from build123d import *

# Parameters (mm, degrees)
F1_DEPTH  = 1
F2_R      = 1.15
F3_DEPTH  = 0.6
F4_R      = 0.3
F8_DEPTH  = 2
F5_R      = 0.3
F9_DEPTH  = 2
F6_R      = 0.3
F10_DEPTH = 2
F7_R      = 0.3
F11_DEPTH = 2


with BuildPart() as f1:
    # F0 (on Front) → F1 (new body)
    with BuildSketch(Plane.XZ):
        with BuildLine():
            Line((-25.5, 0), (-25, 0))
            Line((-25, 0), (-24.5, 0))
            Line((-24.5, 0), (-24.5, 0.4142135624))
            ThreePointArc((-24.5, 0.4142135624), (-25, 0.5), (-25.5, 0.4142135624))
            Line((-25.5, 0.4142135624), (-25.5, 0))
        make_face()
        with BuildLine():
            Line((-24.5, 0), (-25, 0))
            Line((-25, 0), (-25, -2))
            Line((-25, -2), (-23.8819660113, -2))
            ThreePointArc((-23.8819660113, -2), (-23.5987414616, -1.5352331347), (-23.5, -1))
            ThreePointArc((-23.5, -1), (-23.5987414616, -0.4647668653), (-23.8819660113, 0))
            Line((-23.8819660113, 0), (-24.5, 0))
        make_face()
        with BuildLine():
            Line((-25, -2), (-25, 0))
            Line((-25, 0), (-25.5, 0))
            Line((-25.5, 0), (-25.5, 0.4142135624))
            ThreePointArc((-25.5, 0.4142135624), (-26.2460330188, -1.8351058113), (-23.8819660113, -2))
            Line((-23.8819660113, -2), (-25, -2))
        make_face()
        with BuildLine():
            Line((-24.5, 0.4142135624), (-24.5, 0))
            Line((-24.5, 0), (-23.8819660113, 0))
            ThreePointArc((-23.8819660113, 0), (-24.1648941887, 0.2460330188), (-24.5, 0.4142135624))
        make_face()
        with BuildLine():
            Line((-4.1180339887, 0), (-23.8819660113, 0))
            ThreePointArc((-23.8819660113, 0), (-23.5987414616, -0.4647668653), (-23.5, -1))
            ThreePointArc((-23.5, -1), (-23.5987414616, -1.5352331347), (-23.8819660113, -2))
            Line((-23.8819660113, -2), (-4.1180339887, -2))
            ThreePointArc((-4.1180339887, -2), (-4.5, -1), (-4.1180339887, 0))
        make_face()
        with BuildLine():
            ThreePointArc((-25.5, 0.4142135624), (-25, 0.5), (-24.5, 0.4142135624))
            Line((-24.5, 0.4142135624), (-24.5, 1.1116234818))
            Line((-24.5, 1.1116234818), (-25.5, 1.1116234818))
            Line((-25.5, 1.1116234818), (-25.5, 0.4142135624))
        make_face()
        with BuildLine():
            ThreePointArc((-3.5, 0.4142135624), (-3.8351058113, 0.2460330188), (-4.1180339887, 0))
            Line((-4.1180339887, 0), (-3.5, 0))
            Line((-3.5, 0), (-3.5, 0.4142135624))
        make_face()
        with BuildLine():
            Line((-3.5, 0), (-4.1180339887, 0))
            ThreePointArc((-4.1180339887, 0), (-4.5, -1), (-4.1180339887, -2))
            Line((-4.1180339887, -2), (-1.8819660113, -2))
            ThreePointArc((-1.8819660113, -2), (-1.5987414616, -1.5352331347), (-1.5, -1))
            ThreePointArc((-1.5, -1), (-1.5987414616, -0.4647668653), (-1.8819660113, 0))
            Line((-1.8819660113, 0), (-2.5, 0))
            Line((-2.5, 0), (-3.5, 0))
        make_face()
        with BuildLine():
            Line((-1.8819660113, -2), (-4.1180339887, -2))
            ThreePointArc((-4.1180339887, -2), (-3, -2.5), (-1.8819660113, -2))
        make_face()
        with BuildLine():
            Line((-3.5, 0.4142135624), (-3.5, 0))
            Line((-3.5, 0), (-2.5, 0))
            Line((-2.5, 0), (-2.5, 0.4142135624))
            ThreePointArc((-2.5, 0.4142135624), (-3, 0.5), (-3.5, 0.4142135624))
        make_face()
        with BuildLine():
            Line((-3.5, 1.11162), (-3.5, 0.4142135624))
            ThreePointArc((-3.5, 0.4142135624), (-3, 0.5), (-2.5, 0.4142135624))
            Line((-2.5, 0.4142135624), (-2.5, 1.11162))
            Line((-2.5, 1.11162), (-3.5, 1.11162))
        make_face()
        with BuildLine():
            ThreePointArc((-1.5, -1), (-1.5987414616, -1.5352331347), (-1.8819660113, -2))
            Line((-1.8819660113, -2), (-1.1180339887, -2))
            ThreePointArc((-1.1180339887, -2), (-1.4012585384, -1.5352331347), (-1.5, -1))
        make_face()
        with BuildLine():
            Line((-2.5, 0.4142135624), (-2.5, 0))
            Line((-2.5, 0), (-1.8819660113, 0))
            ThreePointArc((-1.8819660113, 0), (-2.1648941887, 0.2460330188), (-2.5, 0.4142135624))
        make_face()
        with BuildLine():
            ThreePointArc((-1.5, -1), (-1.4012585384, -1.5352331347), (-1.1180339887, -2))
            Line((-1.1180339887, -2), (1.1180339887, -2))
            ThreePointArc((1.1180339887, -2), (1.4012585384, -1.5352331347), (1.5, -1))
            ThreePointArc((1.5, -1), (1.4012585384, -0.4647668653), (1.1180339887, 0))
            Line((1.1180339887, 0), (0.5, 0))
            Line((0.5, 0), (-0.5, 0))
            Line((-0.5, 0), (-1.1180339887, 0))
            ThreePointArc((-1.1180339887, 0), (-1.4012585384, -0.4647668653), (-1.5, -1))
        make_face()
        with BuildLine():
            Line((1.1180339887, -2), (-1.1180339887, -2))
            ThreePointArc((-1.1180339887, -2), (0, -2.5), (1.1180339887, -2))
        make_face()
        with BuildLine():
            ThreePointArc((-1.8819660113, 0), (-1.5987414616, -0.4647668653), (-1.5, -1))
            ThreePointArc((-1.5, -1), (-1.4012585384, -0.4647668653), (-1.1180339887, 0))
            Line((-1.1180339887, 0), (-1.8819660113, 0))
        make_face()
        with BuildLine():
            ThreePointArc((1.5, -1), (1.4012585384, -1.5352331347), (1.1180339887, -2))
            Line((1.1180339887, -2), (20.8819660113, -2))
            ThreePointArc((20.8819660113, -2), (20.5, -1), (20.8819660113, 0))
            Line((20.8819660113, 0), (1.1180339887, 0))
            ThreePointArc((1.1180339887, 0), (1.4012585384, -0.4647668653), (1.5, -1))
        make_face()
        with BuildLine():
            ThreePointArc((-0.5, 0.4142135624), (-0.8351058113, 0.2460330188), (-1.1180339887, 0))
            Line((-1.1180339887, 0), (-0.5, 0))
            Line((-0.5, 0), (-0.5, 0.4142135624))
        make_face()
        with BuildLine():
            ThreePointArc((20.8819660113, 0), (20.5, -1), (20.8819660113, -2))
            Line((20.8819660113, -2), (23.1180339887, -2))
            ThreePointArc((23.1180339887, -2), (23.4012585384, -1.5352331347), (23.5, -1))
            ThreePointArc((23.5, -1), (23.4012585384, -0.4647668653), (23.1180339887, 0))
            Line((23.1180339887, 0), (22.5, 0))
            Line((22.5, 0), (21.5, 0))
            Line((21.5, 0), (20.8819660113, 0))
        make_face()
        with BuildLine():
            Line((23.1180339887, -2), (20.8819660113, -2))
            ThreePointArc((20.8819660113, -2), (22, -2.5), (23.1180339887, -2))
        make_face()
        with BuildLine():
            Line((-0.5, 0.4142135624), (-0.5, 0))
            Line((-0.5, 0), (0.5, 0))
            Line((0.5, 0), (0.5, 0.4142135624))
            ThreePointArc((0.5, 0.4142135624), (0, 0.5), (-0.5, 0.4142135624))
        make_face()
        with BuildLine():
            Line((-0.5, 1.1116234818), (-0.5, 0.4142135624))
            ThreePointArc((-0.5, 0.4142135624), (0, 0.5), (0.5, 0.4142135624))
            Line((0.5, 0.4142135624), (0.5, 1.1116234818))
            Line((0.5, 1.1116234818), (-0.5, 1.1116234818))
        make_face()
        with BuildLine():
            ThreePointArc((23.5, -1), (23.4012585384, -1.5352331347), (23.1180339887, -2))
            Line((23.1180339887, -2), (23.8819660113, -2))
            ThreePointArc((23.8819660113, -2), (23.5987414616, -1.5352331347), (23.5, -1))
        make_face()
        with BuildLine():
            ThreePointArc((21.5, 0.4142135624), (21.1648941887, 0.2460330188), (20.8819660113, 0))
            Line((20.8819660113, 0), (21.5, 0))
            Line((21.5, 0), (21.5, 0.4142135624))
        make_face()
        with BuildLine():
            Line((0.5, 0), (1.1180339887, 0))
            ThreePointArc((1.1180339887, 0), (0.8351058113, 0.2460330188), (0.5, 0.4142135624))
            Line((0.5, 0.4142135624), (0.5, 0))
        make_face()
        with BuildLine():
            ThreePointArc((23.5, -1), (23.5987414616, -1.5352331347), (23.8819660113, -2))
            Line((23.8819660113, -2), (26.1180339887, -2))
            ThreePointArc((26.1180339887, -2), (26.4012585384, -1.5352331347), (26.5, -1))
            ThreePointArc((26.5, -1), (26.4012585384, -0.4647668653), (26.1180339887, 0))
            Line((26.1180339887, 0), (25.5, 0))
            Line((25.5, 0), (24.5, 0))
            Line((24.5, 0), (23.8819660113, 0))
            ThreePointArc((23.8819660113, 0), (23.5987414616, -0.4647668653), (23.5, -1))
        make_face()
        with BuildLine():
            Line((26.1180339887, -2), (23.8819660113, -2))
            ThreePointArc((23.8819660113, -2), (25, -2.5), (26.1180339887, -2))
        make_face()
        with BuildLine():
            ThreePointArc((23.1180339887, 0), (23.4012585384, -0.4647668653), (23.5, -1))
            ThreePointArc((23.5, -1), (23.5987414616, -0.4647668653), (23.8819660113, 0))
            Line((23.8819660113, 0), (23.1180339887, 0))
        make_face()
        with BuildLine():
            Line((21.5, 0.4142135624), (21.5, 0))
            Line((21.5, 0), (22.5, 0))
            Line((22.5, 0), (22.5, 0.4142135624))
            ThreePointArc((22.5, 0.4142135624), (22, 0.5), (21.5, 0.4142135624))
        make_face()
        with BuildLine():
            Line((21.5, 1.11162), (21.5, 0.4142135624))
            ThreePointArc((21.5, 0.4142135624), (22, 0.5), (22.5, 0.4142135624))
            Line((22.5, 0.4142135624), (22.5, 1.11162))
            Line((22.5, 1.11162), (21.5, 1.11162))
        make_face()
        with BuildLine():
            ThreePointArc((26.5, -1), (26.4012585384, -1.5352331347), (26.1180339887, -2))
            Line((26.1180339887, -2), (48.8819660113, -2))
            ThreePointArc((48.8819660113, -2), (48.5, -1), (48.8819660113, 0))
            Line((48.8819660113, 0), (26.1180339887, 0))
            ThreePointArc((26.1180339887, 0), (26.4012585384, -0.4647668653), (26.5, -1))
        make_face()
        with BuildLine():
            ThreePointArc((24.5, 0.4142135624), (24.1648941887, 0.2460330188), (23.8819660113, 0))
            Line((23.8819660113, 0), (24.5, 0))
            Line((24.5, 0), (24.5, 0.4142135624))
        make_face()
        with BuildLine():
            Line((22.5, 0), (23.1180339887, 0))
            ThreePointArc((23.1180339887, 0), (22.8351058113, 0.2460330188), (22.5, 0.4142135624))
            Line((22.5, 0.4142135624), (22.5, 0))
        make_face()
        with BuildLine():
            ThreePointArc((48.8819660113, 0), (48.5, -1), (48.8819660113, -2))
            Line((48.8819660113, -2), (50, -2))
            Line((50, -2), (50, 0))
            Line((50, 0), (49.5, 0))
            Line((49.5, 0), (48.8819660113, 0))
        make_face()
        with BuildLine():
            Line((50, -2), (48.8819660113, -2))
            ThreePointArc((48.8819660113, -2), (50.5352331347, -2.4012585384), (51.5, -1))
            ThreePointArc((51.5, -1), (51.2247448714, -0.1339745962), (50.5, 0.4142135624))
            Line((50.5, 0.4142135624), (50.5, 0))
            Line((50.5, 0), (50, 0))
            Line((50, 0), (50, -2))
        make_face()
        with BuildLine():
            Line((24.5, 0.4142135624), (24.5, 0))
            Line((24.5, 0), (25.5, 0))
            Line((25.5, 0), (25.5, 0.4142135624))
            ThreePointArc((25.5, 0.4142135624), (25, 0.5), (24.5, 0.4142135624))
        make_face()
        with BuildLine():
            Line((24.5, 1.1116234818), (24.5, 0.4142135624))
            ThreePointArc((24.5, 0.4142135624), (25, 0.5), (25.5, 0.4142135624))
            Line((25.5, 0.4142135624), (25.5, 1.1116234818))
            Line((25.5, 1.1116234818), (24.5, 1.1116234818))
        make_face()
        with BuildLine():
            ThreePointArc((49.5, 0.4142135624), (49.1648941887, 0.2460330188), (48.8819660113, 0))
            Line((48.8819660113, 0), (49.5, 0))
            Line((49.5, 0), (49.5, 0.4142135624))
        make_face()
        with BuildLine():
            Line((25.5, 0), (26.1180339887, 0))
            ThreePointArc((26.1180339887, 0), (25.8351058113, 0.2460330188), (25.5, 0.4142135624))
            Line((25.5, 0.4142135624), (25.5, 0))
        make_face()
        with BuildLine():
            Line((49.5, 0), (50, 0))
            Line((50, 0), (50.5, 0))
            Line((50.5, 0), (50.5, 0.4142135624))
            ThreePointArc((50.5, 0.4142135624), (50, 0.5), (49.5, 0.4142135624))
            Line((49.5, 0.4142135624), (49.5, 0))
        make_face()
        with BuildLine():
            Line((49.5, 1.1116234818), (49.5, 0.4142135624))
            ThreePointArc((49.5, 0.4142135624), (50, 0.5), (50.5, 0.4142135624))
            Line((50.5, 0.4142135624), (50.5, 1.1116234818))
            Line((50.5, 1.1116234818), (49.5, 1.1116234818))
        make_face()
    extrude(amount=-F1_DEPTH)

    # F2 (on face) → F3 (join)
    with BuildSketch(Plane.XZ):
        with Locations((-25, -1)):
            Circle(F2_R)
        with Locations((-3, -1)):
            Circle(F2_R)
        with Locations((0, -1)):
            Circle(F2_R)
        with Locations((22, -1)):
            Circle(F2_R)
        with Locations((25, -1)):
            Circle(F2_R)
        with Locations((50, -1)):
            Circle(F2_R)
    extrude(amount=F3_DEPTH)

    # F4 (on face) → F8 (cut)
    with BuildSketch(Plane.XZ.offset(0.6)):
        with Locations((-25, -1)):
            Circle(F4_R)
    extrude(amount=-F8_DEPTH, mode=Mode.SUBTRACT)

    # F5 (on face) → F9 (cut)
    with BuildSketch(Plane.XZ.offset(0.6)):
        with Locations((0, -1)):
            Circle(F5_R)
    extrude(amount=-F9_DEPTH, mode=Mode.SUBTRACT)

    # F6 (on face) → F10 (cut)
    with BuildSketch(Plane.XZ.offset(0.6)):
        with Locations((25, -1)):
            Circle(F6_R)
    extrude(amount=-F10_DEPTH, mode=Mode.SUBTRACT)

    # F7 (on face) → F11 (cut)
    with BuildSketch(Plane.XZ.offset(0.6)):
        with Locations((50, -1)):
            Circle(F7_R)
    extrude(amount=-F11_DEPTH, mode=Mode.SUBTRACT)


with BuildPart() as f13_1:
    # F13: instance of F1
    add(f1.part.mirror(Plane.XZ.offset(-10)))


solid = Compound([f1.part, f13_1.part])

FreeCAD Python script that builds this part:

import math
import FreeCAD as App
import Part
import Sketcher
from FreeCAD import Vector

doc = App.newDocument("Part")
params = doc.addObject("Spreadsheet::Sheet", "Params")
for row, (alias, value) in enumerate([
    ("sketch1_radius", "1.5 mm"),
    ("sketch1_width", "1 mm"),
    ("pad1_length", "1 mm"),
    ("sketch2_diameter", "2.3 mm"),
    ("pad2_length", "0.6 mm"),
    ("sketch3_diameter", "0.6 mm"),
    ("pocket1_length", "2 mm"),
    ("sketch4_diameter", "0.6 mm"),
    ("pocket2_length", "2 mm"),
    ("sketch5_diameter", "0.6 mm"),
    ("pocket3_length", "2 mm"),
    ("sketch6_diameter", "0.6 mm"),
    ("pocket4_length", "2 mm"),
], start=1):
    params.set(f"A{row}", alias)
    params.set(f"B{row}", "=" + value)
    params.setAlias(f"B{row}", alias)

body = doc.addObject("PartDesign::Body", "Body")

# Sketch on XZ plane
sketch1 = body.newObject("Sketcher::SketchObject", "Sketch")
sketch1.AttachmentSupport = (doc.getObject("XZ_Plane"), [""])
sketch1.MapMode = "FlatFace"
sketch1.addGeometry(Part.ArcOfCircle(Part.Circle(Vector(-25, -1, 0), Vector(0, 0, 1), 1.5), math.radians(42), math.radians(71)), False)
sketch1.addGeometry(Part.LineSegment(Vector(-24.5, 0.4, 0), Vector(-24.5, 1.1, 0)), False)
sketch1.addGeometry(Part.LineSegment(Vector(-24.5, 1.1, 0), Vector(-25.5, 1.1, 0)), False)
sketch1.addGeometry(Part.LineSegment(Vector(-25.5, 1.1, 0), Vector(-25.5, 0.4, 0)), False)
sketch1.addGeometry(Part.ArcOfCircle(Part.Circle(Vector(-25, -1, 0), Vector(0, 0, 1), 1.5), math.radians(109), math.radians(318)), False)
sketch1.addGeometry(Part.LineSegment(Vector(-23.9, -2, 0), Vector(-4.1, -2, 0)), False)
sketch1.addGeometry(Part.ArcOfCircle(Part.Circle(Vector(-3, -1, 0), Vector(0, 0, 1), 1.5), math.radians(-138), math.radians(-42)), False)
sketch1.addGeometry(Part.LineSegment(Vector(-1.9, -2, 0), Vector(-1.1, -2, 0)), False)
sketch1.addGeometry(Part.ArcOfCircle(Part.Circle(Vector(0, -1, 0), Vector(0, 0, 1), 1.5), math.radians(-138), math.radians(-42)), False)
sketch1.addGeometry(Part.LineSegment(Vector(1.1, -2, 0), Vector(20.9, -2, 0)), False)
sketch1.addGeometry(Part.ArcOfCircle(Part.Circle(Vector(22, -1, 0), Vector(0, 0, 1), 1.5), math.radians(-138), math.radians(-42)), False)
sketch1.addGeometry(Part.LineSegment(Vector(23.1, -2, 0), Vector(23.9, -2, 0)), False)
sketch1.addGeometry(Part.ArcOfCircle(Part.Circle(Vector(25, -1, 0), Vector(0, 0, 1), 1.5), math.radians(-138), math.radians(-42)), False)
sketch1.addGeometry(Part.LineSegment(Vector(26.1, -2, 0), Vector(48.9, -2, 0)), False)
sketch1.addGeometry(Part.ArcOfCircle(Part.Circle(Vector(50, -1, 0), Vector(0, 0, 1), 1.5), math.radians(-138), math.radians(0)), False)
sketch1.addGeometry(Part.ArcOfCircle(Part.Circle(Vector(50, -1, 0), Vector(0, 0, 1), 1.5), math.radians(0), math.radians(71)), False)
sketch1.addGeometry(Part.LineSegment(Vector(50.5, 0.4, 0), Vector(50.5, 1.1, 0)), False)
sketch1.addGeometry(Part.LineSegment(Vector(50.5, 1.1, 0), Vector(49.5, 1.1, 0)), False)
sketch1.addGeometry(Part.LineSegment(Vector(49.5, 1.1, 0), Vector(49.5, 0.4, 0)), False)
sketch1.addGeometry(Part.ArcOfCircle(Part.Circle(Vector(50, -1, 0), Vector(0, 0, 1), 1.5), math.radians(109), math.radians(138)), False)
sketch1.addGeometry(Part.LineSegment(Vector(48.9, 0, 0), Vector(26.1, 0, 0)), False)
sketch1.addGeometry(Part.ArcOfCircle(Part.Circle(Vector(25, -1, 0), Vector(0, 0, 1), 1.5), math.radians(42), math.radians(71)), False)
sketch1.addGeometry(Part.LineSegment(Vector(25.5, 0.4, 0), Vector(25.5, 1.1, 0)), False)
sketch1.addGeometry(Part.LineSegment(Vector(25.5, 1.1, 0), Vector(24.5, 1.1, 0)), False)
sketch1.addGeometry(Part.LineSegment(Vector(24.5, 1.1, 0), Vector(24.5, 0.4, 0)), False)
sketch1.addGeometry(Part.ArcOfCircle(Part.Circle(Vector(25, -1, 0), Vector(0, 0, 1), 1.5), math.radians(109), math.radians(138)), False)
sketch1.addGeometry(Part.LineSegment(Vector(23.9, 0, 0), Vector(23.1, 0, 0)), False)
sketch1.addGeometry(Part.ArcOfCircle(Part.Circle(Vector(22, -1, 0), Vector(0, 0, 1), 1.5), math.radians(42), math.radians(71)), False)
sketch1.addGeometry(Part.LineSegment(Vector(22.5, 0.4, 0), Vector(22.5, 1.1, 0)), False)
sketch1.addGeometry(Part.LineSegment(Vector(22.5, 1.1, 0), Vector(21.5, 1.1, 0)), False)
sketch1.addGeometry(Part.LineSegment(Vector(21.5, 1.1, 0), Vector(21.5, 0.4, 0)), False)
sketch1.addGeometry(Part.ArcOfCircle(Part.Circle(Vector(22, -1, 0), Vector(0, 0, 1), 1.5), math.radians(109), math.radians(138)), False)
sketch1.addGeometry(Part.LineSegment(Vector(20.9, 0, 0), Vector(1.1, 0, 0)), False)
sketch1.addGeometry(Part.ArcOfCircle(Part.Circle(Vector(0, -1, 0), Vector(0, 0, 1), 1.5), math.radians(42), math.radians(71)), False)
sketch1.addGeometry(Part.LineSegment(Vector(0.5, 0.4, 0), Vector(0.5, 1.1, 0)), False)
sketch1.addGeometry(Part.LineSegment(Vector(0.5, 1.1, 0), Vector(-0.5, 1.1, 0)), False)
sketch1.addGeometry(Part.LineSegment(Vector(-0.5, 1.1, 0), Vector(-0.5, 0.4, 0)), False)
sketch1.addGeometry(Part.ArcOfCircle(Part.Circle(Vector(0, -1, 0), Vector(0, 0, 1), 1.5), math.radians(109), math.radians(138)), False)
sketch1.addGeometry(Part.LineSegment(Vector(-1.1, 0, 0), Vector(-1.9, 0, 0)), False)
sketch1.addGeometry(Part.ArcOfCircle(Part.Circle(Vector(-3, -1, 0), Vector(0, 0, 1), 1.5), math.radians(42), math.radians(71)), False)
sketch1.addGeometry(Part.LineSegment(Vector(-2.5, 0.4, 0), Vector(-2.5, 1.1, 0)), False)
sketch1.addGeometry(Part.LineSegment(Vector(-2.5, 1.1, 0), Vector(-3.5, 1.1, 0)), False)
sketch1.addGeometry(Part.LineSegment(Vector(-3.5, 1.1, 0), Vector(-3.5, 0.4, 0)), False)
sketch1.addGeometry(Part.ArcOfCircle(Part.Circle(Vector(-3, -1, 0), Vector(0, 0, 1), 1.5), math.radians(109), math.radians(138)), False)
sketch1.addGeometry(Part.LineSegment(Vector(-4.1, 0, 0), Vector(-23.9, 0, 0)), False)
sketch1.addConstraint(Sketcher.Constraint("Coincident", 0, 2, 1, 1))
sketch1.addConstraint(Sketcher.Constraint("Coincident", 1, 2, 2, 1))
sketch1.addConstraint(Sketcher.Constraint("Coincident", 2, 2, 3, 1))
sketch1.addConstraint(Sketcher.Constraint("Coincident", 3, 2, 4, 1))
sketch1.addConstraint(Sketcher.Constraint("Coincident", 4, 2, 5, 1))
sketch1.addConstraint(Sketcher.Constraint("Coincident", 5, 2, 6, 1))
sketch1.addConstraint(Sketcher.Constraint("Coincident", 6, 2, 7, 1))
sketch1.addConstraint(Sketcher.Constraint("Coincident", 7, 2, 8, 1))
sketch1.addConstraint(Sketcher.Constraint("Coincident", 8, 2, 9, 1))
sketch1.addConstraint(Sketcher.Constraint("Coincident", 9, 2, 10, 1))
sketch1.addConstraint(Sketcher.Constraint("Coincident", 10, 2, 11, 1))
sketch1.addConstraint(Sketcher.Constraint("Coincident", 11, 2, 12, 1))
sketch1.addConstraint(Sketcher.Constraint("Coincident", 12, 2, 13, 1))
sketch1.addConstraint(Sketcher.Constraint("Coincident", 13, 2, 14, 1))
sketch1.addConstraint(Sketcher.Constraint("Tangent", 14, 2, 15, 1))
sketch1.addConstraint(Sketcher.Constraint("Coincident", 15, 2, 16, 1))
sketch1.addConstraint(Sketcher.Constraint("Coincident", 16, 2, 17, 1))
sketch1.addConstraint(Sketcher.Constraint("Coincident", 17, 2, 18, 1))
sketch1.addConstraint(Sketcher.Constraint("Coincident", 18, 2, 19, 1))
sketch1.addConstraint(Sketcher.Constraint("Coincident", 19, 2, 20, 1))
sketch1.addConstraint(Sketcher.Constraint("Coincident", 20, 2, 21, 1))
sketch1.addConstraint(Sketcher.Constraint("Coincident", 21, 2, 22, 1))
sketch1.addConstraint(Sketcher.Constraint("Coincident", 22, 2, 23, 1))
sketch1.addConstraint(Sketcher.Constraint("Coincident", 23, 2, 24, 1))
sketch1.addConstraint(Sketcher.Constraint("Coincident", 24, 2, 25, 1))
sketch1.addConstraint(Sketcher.Constraint("Coincident", 25, 2, 26, 1))
sketch1.addConstraint(Sketcher.Constraint("Coincident", 26, 2, 27, 1))
sketch1.addConstraint(Sketcher.Constraint("Coincident", 27, 2, 28, 1))
sketch1.addConstraint(Sketcher.Constraint("Coincident", 28, 2, 29, 1))
sketch1.addConstraint(Sketcher.Constraint("Coincident", 29, 2, 30, 1))
sketch1.addConstraint(Sketcher.Constraint("Coincident", 30, 2, 31, 1))
sketch1.addConstraint(Sketcher.Constraint("Coincident", 31, 2, 32, 1))
sketch1.addConstraint(Sketcher.Constraint("Coincident", 32, 2, 33, 1))
sketch1.addConstraint(Sketcher.Constraint("Coincident", 33, 2, 34, 1))
sketch1.addConstraint(Sketcher.Constraint("Coincident", 34, 2, 35, 1))
sketch1.addConstraint(Sketcher.Constraint("Coincident", 35, 2, 36, 1))
sketch1.addConstraint(Sketcher.Constraint("Coincident", 36, 2, 37, 1))
sketch1.addConstraint(Sketcher.Constraint("Coincident", 37, 2, 38, 1))
sketch1.addConstraint(Sketcher.Constraint("Coincident", 38, 2, 39, 1))
sketch1.addConstraint(Sketcher.Constraint("Coincident", 39, 2, 40, 1))
sketch1.addConstraint(Sketcher.Constraint("Coincident", 40, 2, 41, 1))
sketch1.addConstraint(Sketcher.Constraint("Coincident", 41, 2, 42, 1))
sketch1.addConstraint(Sketcher.Constraint("Coincident", 42, 2, 43, 1))
sketch1.addConstraint(Sketcher.Constraint("Coincident", 43, 2, 44, 1))
sketch1.addConstraint(Sketcher.Constraint("Coincident", 44, 2, 0, 1))
sketch1.addConstraint(Sketcher.Constraint("Vertical", 1))
sketch1.addConstraint(Sketcher.Constraint("Horizontal", 2))
sketch1.addConstraint(Sketcher.Constraint("Vertical", 3))
sketch1.addConstraint(Sketcher.Constraint("Horizontal", 5))
sketch1.addConstraint(Sketcher.Constraint("Horizontal", 7))
sketch1.addConstraint(Sketcher.Constraint("Horizontal", 9))
sketch1.addConstraint(Sketcher.Constraint("Horizontal", 11))
sketch1.addConstraint(Sketcher.Constraint("Horizontal", 13))
sketch1.addConstraint(Sketcher.Constraint("Vertical", 16))
sketch1.addConstraint(Sketcher.Constraint("Horizontal", 17))
sketch1.addConstraint(Sketcher.Constraint("Vertical", 18))
sketch1.addConstraint(Sketcher.Constraint("Horizontal", 20))
sketch1.addConstraint(Sketcher.Constraint("Vertical", 22))
sketch1.addConstraint(Sketcher.Constraint("Horizontal", 23))
sketch1.addConstraint(Sketcher.Constraint("Vertical", 24))
sketch1.addConstraint(Sketcher.Constraint("Horizontal", 26))
sketch1.addConstraint(Sketcher.Constraint("Vertical", 28))
sketch1.addConstraint(Sketcher.Constraint("Horizontal", 29))
sketch1.addConstraint(Sketcher.Constraint("Vertical", 30))
sketch1.addConstraint(Sketcher.Constraint("Horizontal", 32))
sketch1.addConstraint(Sketcher.Constraint("Vertical", 34))
sketch1.addConstraint(Sketcher.Constraint("Horizontal", 35))
sketch1.addConstraint(Sketcher.Constraint("Vertical", 36))
sketch1.addConstraint(Sketcher.Constraint("Horizontal", 38))
sketch1.addConstraint(Sketcher.Constraint("Vertical", 40))
sketch1.addConstraint(Sketcher.Constraint("Horizontal", 41))
sketch1.addConstraint(Sketcher.Constraint("Vertical", 42))
sketch1.addConstraint(Sketcher.Constraint("Horizontal", 44))
sketch1.addConstraint(Sketcher.Constraint("Coincident", 4, 3, 0, 3))
sketch1.addConstraint(Sketcher.Constraint("Coincident", 19, 3, 14, 3))
sketch1.addConstraint(Sketcher.Constraint("Coincident", 21, 3, 12, 3))
sketch1.addConstraint(Sketcher.Constraint("Coincident", 25, 3, 12, 3))
sketch1.addConstraint(Sketcher.Constraint("Coincident", 27, 3, 10, 3))
sketch1.addConstraint(Sketcher.Constraint("Coincident", 31, 3, 10, 3))
sketch1.addConstraint(Sketcher.Constraint("Coincident", 33, 3, 8, 3))
sketch1.addConstraint(Sketcher.Constraint("Coincident", 37, 3, 8, 3))
sketch1.addConstraint(Sketcher.Constraint("Coincident", 39, 3, 6, 3))
sketch1.addConstraint(Sketcher.Constraint("Coincident", 43, 3, 6, 3))
sketch1.addConstraint(Sketcher.Constraint("Equal", 0, 4))
sketch1.addConstraint(Sketcher.Constraint("Equal", 4, 6))
sketch1.addConstraint(Sketcher.Constraint("Equal", 6, 8))
sketch1.addConstraint(Sketcher.Constraint("Equal", 8, 10))
sketch1.addConstraint(Sketcher.Constraint("Equal", 10, 12))
sketch1.addConstraint(Sketcher.Constraint("Equal", 12, 14))
sketch1.addConstraint(Sketcher.Constraint("Equal", 14, 15))
sketch1.addConstraint(Sketcher.Constraint("Equal", 15, 19))
sketch1.addConstraint(Sketcher.Constraint("Equal", 19, 21))
sketch1.addConstraint(Sketcher.Constraint("Equal", 21, 25))
sketch1.addConstraint(Sketcher.Constraint("Equal", 25, 27))
sketch1.addConstraint(Sketcher.Constraint("Equal", 27, 31))
sketch1.addConstraint(Sketcher.Constraint("Equal", 31, 33))
sketch1.addConstraint(Sketcher.Constraint("Equal", 33, 37))
sketch1.addConstraint(Sketcher.Constraint("Equal", 37, 39))
sketch1.addConstraint(Sketcher.Constraint("Equal", 39, 43))
sketch1.addConstraint(Sketcher.Constraint("Symmetric", 32, 2, 37, 2, -1, 1))
sketch1.addConstraint(Sketcher.Constraint("Symmetric", 25, 2, 44, 2, -1, 1))
sketch1.addConstraint(Sketcher.Constraint("Symmetric", 0, 3, 12, 3, -2))
sketch1.addConstraint(Sketcher.Constraint("Symmetric", 7, 2, 8, 2, -2))
sketch1.addConstraint(Sketcher.Constraint("Symmetric", 2, 2, 22, 2, -2))
sketch1.addConstraint(Sketcher.Constraint("PointOnObject", 19, 2, -1))
sketch1.addConstraint(Sketcher.Constraint("Horizontal", 4, 3, 6, 3))
sketch1.addConstraint(Sketcher.Constraint("Horizontal", 6, 3, 8, 3))
sketch1.addConstraint(Sketcher.Constraint("Horizontal", 8, 3, 10, 3))
sketch1.addConstraint(Sketcher.Constraint("Horizontal", 12, 3, 14, 3))
sketch1.addConstraint(Sketcher.Constraint("Horizontal", 0, 2, 3, 2))
sketch1.addConstraint(Sketcher.Constraint("Horizontal", 5, 2, 6, 2))
sketch1.addConstraint(Sketcher.Constraint("Horizontal", 9, 2, 10, 2))
sketch1.addConstraint(Sketcher.Constraint("Horizontal", 11, 2, 12, 2))
sketch1.addConstraint(Sketcher.Constraint("Horizontal", 43, 3, 14, 2))
sketch1.addConstraint(Sketcher.Constraint("Horizontal", 3, 2, 15, 2))
sketch1.addConstraint(Sketcher.Constraint("Horizontal", 2, 2, 16, 2))
sketch1.addConstraint(Sketcher.Constraint("Horizontal", 15, 2, 18, 2))
sketch1.addConstraint(Sketcher.Constraint("Horizontal", 21, 2, 24, 2))
sketch1.addConstraint(Sketcher.Constraint("Horizontal", 24, 2, 27, 2))
sketch1.addConstraint(Sketcher.Constraint("Horizontal", 27, 2, 30, 2))
sketch1.addConstraint(Sketcher.Constraint("Horizontal", 30, 2, 33, 2))
sketch1.addConstraint(Sketcher.Constraint("Horizontal", 23, 2, 34, 2))
sketch1.addConstraint(Sketcher.Constraint("Horizontal", 33, 2, 36, 2))
sketch1.addConstraint(Sketcher.Constraint("Horizontal", 36, 2, 39, 2))
sketch1.addConstraint(Sketcher.Constraint("Horizontal", 29, 2, 40, 2))
sketch1.addConstraint(Sketcher.Constraint("Horizontal", 39, 2, 42, 2))
sketch1.addConstraint(Sketcher.Constraint("Vertical", 13, 2, 19, 2))
sketch1.addConstraint(Sketcher.Constraint("Equal", 5, 9))
sketch1.addConstraint(Sketcher.Constraint("Radius", 0, 1.5))
sketch1.addConstraint(Sketcher.Constraint("DistanceX", 2, 2, 2, 1, 1.0))
sketch1.addConstraint(Sketcher.Constraint("DistanceX", 0, 3, -1, 1, 25.0))
sketch1.addConstraint(Sketcher.Constraint("DistanceY", 0, 3, -1, 1, 1.0))
sketch1.addConstraint(Sketcher.Constraint("DistanceX", 6, 3, -1, 1, 3.0))
sketch1.addConstraint(Sketcher.Constraint("DistanceX", -1, 1, 14, 3, 50.0))
sketch1.addConstraint(Sketcher.Constraint("DistanceY", 1, 1, 1, 2, 0.69741))
sketch1.addConstraint(Sketcher.Constraint("DistanceY", 28, 1, 28, 2, 0.697406))
sketch1.setExpression("Constraints[128]", "Params.sketch1_radius")
sketch1.setExpression("Constraints[129]", "Params.sketch1_width")
pad1 = body.newObject("PartDesign::Pad", "Pad")
pad1.Profile = sketch1
pad1.setExpression("Length", "Params.pad1_length")
pad1.Reversed = True

# Sketch on XZ plane
sketch2 = body.newObject("Sketcher::SketchObject", "Sketch001")
sketch2.AttachmentSupport = (doc.getObject("XZ_Plane"), [""])
sketch2.MapMode = "FlatFace"
sketch2.addGeometry(Part.Circle(Vector(-25, -1, 0), Vector(0, 0, 1), 1.1), False)
sketch2.addGeometry(Part.Circle(Vector(-3, -1, 0), Vector(0, 0, 1), 1.1), False)
sketch2.addGeometry(Part.Circle(Vector(0, -1, 0), Vector(0, 0, 1), 1.1), False)
sketch2.addGeometry(Part.Circle(Vector(22, -1, 0), Vector(0, 0, 1), 1.1), False)
sketch2.addGeometry(Part.Circle(Vector(25, -1, 0), Vector(0, 0, 1), 1.1), False)
sketch2.addGeometry(Part.Circle(Vector(50, -1, 0), Vector(0, 0, 1), 1.1), False)
sketch2.addConstraint(Sketcher.Constraint("Equal", 0, 1))
sketch2.addConstraint(Sketcher.Constraint("Equal", 1, 2))
sketch2.addConstraint(Sketcher.Constraint("Equal", 2, 3))
sketch2.addConstraint(Sketcher.Constraint("Equal", 3, 4))
sketch2.addConstraint(Sketcher.Constraint("Equal", 4, 5))
sketch2.addConstraint(Sketcher.Constraint("Symmetric", 0, 3, 4, 3, -2))
sketch2.addConstraint(Sketcher.Constraint("PointOnObject", 2, 3, -2))
sketch2.addConstraint(Sketcher.Constraint("Horizontal", 0, 3, 1, 3))
sketch2.addConstraint(Sketcher.Constraint("Horizontal", 1, 3, 2, 3))
sketch2.addConstraint(Sketcher.Constraint("Horizontal", 2, 3, 3, 3))
sketch2.addConstraint(Sketcher.Constraint("Horizontal", 4, 3, 5, 3))
sketch2.addConstraint(Sketcher.Constraint("Diameter", 0, 2.3))
sketch2.addConstraint(Sketcher.Constraint("DistanceX", 0, 3, -1, 1, 25.0))
sketch2.addConstraint(Sketcher.Constraint("DistanceY", 0, 3, -1, 1, 1.0))
sketch2.addConstraint(Sketcher.Constraint("DistanceX", 1, 3, -1, 1, 3.0))
sketch2.addConstraint(Sketcher.Constraint("DistanceX", -1, 1, 3, 3, 22.0))
sketch2.addConstraint(Sketcher.Constraint("DistanceX", -1, 1, 5, 3, 50.0))
sketch2.setExpression("Constraints[11]", "Params.sketch2_diameter")
pad2 = body.newObject("PartDesign::Pad", "Pad001")
pad2.Profile = sketch2
pad2.setExpression("Length", "Params.pad2_length")

# Sketch on XZ plane
sketch3 = body.newObject("Sketcher::SketchObject", "Sketch002")
sketch3.AttachmentSupport = (doc.getObject("XZ_Plane"), [""])
sketch3.MapMode = "FlatFace"
sketch3.AttachmentOffset = App.Placement(Vector(0, 0, 0.6), App.Rotation())
sketch3.addGeometry(Part.Circle(Vector(-25, -1, 0), Vector(0, 0, 1), 0.3), False)
sketch3.addConstraint(Sketcher.Constraint("Diameter", 0, 0.6))
sketch3.addConstraint(Sketcher.Constraint("DistanceX", 0, 3, -1, 1, 25.0))
sketch3.addConstraint(Sketcher.Constraint("DistanceY", 0, 3, -1, 1, 1.0))
sketch3.setExpression("Constraints[0]", "Params.sketch3_diameter")
pocket1 = body.newObject("PartDesign::Pocket", "Pocket")
pocket1.Profile = sketch3
pocket1.setExpression("Length", "Params.pocket1_length")

# Sketch on XZ plane
sketch4 = body.newObject("Sketcher::SketchObject", "Sketch003")
sketch4.AttachmentSupport = (doc.getObject("XZ_Plane"), [""])
sketch4.MapMode = "FlatFace"
sketch4.AttachmentOffset = App.Placement(Vector(0, 0, 0.6), App.Rotation())
sketch4.addGeometry(Part.Circle(Vector(0, -1, 0), Vector(0, 0, 1), 0.3), False)
sketch4.addConstraint(Sketcher.Constraint("PointOnObject", 0, 3, -2))
sketch4.addConstraint(Sketcher.Constraint("Diameter", 0, 0.6))
sketch4.addConstraint(Sketcher.Constraint("DistanceY", 0, 3, -1, 1, 1.0))
sketch4.setExpression("Constraints[1]", "Params.sketch4_diameter")
pocket2 = body.newObject("PartDesign::Pocket", "Pocket001")
pocket2.Profile = sketch4
pocket2.setExpression("Length", "Params.pocket2_length")

# Sketch on XZ plane
sketch5 = body.newObject("Sketcher::SketchObject", "Sketch004")
sketch5.AttachmentSupport = (doc.getObject("XZ_Plane"), [""])
sketch5.MapMode = "FlatFace"
sketch5.AttachmentOffset = App.Placement(Vector(0, 0, 0.6), App.Rotation())
sketch5.addGeometry(Part.Circle(Vector(25, -1, 0), Vector(0, 0, 1), 0.3), False)
sketch5.addConstraint(Sketcher.Constraint("Diameter", 0, 0.6))
sketch5.addConstraint(Sketcher.Constraint("DistanceX", -1, 1, 0, 3, 25.0))
sketch5.addConstraint(Sketcher.Constraint("DistanceY", 0, 3, -1, 1, 1.0))
sketch5.setExpression("Constraints[0]", "Params.sketch5_diameter")
pocket3 = body.newObject("PartDesign::Pocket", "Pocket002")
pocket3.Profile = sketch5
pocket3.setExpression("Length", "Params.pocket3_length")

# Sketch on XZ plane
sketch6 = body.newObject("Sketcher::SketchObject", "Sketch005")
sketch6.AttachmentSupport = (doc.getObject("XZ_Plane"), [""])
sketch6.MapMode = "FlatFace"
sketch6.AttachmentOffset = App.Placement(Vector(0, 0, 0.6), App.Rotation())
sketch6.addGeometry(Part.Circle(Vector(50, -1, 0), Vector(0, 0, 1), 0.3), False)
sketch6.addConstraint(Sketcher.Constraint("Diameter", 0, 0.6))
sketch6.addConstraint(Sketcher.Constraint("DistanceX", -1, 1, 0, 3, 50.0))
sketch6.addConstraint(Sketcher.Constraint("DistanceY", 0, 3, -1, 1, 1.0))
sketch6.setExpression("Constraints[0]", "Params.sketch6_diameter")
pocket4 = body.newObject("PartDesign::Pocket", "Pocket003")
pocket4.Profile = sketch6
pocket4.setExpression("Length", "Params.pocket4_length")
body2 = doc.addObject("PartDesign::Body", "Body001")
doc.recompute()

mirroring = doc.addObject("Part::Mirroring", "Mirroring")
mirroring.Source = body
mirroring.Base = Vector(0, 10, 0)
mirroring.Normal = Vector(0, -1, 0)
body2.BaseFeature = mirroring
doc.recompute()
mirroring.Visibility = False

doc.recompute()
